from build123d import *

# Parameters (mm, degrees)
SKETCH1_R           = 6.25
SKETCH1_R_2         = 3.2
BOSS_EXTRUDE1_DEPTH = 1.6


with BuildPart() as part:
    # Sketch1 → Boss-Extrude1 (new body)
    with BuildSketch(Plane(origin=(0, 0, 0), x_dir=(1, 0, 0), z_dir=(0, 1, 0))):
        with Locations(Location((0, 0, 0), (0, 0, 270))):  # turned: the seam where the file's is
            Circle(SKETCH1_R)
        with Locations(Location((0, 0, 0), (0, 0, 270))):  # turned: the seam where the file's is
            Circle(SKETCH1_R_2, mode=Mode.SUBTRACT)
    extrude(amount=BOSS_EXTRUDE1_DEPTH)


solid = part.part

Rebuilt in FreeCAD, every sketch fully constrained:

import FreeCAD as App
import Part
import Sketcher
Q = App.Units.Quantity

doc = App.newDocument("Part")
body = doc.addObject("PartDesign::Body", "Body")

# Sketch on XZ plane
sketch1 = body.newObject("Sketcher::SketchObject", "Sketch")
sketch1.AttachmentSupport = (doc.getObject("XZ_Plane"), [""])
sketch1.MapMode = "FlatFace"
sketch1.addGeometry([
    Part.Circle(App.Vector(0, 0, 0), App.Vector(0, 0, 1), 6.25),
    Part.Circle(App.Vector(0, 0, 0), App.Vector(0, 0, 1), 3.2),
], False)
sketch1.addConstraint([
    Sketcher.Constraint("Coincident", 0, 3, -1, 1),
    Sketcher.Constraint("Coincident", 1, 3, -1, 1),
    Sketcher.Constraint("Diameter", 0, Q("12.5 mm")),
    Sketcher.Constraint("Diameter", 1, Q("6.4 mm")),
])
pad1 = body.newObject("PartDesign::Pad", "Pad")
pad1.Profile = sketch1
pad1.Length = 1.6
pad1.Reversed = True

doc.recompute()
